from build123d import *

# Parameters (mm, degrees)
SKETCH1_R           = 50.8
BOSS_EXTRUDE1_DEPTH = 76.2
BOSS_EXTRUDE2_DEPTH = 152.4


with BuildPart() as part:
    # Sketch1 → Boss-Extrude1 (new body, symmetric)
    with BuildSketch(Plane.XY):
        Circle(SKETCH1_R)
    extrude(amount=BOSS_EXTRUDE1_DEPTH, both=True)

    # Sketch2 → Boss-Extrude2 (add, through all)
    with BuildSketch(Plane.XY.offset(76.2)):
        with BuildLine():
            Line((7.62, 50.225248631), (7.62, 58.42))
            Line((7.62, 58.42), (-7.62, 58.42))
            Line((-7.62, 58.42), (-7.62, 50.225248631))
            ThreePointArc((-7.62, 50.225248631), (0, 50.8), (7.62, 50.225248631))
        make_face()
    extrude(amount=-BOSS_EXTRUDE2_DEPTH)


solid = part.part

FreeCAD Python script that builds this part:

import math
import FreeCAD as App
import Part
import Sketcher
from FreeCAD import Vector
Q = App.Units.Quantity

doc = App.newDocument("Part")
body = doc.addObject("PartDesign::Body", "Body")

# Sketch on XY plane
sketch1 = body.newObject("Sketcher::SketchObject", "Sketch")
sketch1.AttachmentSupport = (doc.getObject("XY_Plane"), [""])
sketch1.MapMode = "FlatFace"
sketch1.addGeometry(Part.Circle(Vector(0, 0, 0), Vector(0, 0, 1), 51), False)
sketch1.addConstraint(Sketcher.Constraint("Coincident", 0, 3, -1, 1))
sketch1.addConstraint(Sketcher.Constraint("Diameter", 0, Q("4 in")))
pad1 = body.newObject("PartDesign::Pad", "Pad")
pad1.Profile = sketch1
pad1.Length = Q("6 in")
pad1.Midplane = True

# Sketch on XY plane
sketch2 = body.newObject("Sketcher::SketchObject", "Sketch001")
sketch2.AttachmentSupport = (doc.getObject("XY_Plane"), [""])
sketch2.MapMode = "FlatFace"
sketch2.AttachmentOffset = App.Placement(Vector(0, 0, 3 * 25.4), App.Rotation())
sketch2.addGeometry(Part.LineSegment(Vector(8, 50, 0), Vector(8, 58, 0)), False)
sketch2.addGeometry(Part.LineSegment(Vector(8, 58, 0), Vector(-8, 58, 0)), False)
sketch2.addGeometry(Part.LineSegment(Vector(-8, 58, 0), Vector(-8, 50, 0)), False)
sketch2.addGeometry(Part.ArcOfCircle(Part.Circle(Vector(0, 0, 0), Vector(0, 0, 1), 51), math.radians(81.37), math.radians(98.63)), False)
sketch2.addConstraint(Sketcher.Constraint("Coincident", 0, 2, 1, 1))
sketch2.addConstraint(Sketcher.Constraint("Coincident", 1, 2, 2, 1))
sketch2.addConstraint(Sketcher.Constraint("Coincident", 2, 2, 3, 2))
sketch2.addConstraint(Sketcher.Constraint("Coincident", 3, 1, 0, 1))
sketch2.addConstraint(Sketcher.Constraint("Vertical", 0))
sketch2.addConstraint(Sketcher.Constraint("Horizontal", 1))
sketch2.addConstraint(Sketcher.Constraint("Vertical", 2))
sketch2.addConstraint(Sketcher.Constraint("Coincident", 3, 3, -1, 1))
sketch2.addConstraint(Sketcher.Constraint("Horizontal", 2, 2, 3, 1))
sketch2.addConstraint(Sketcher.Constraint("Radius", 3, Q("2 in")))
sketch2.addConstraint(Sketcher.Constraint("DistanceX", 1, 2, 1, 1, Q("0.6 in")))
sketch2.addConstraint(Sketcher.Constraint("DistanceY", -1, 1, 0, 2, Q("2.3 in")))
pad2 = body.newObject("PartDesign::Pad", "Pad001")
pad2.Profile = sketch2
pad2.Length = Q("6 in")
pad2.Reversed = True

doc.recompute()
